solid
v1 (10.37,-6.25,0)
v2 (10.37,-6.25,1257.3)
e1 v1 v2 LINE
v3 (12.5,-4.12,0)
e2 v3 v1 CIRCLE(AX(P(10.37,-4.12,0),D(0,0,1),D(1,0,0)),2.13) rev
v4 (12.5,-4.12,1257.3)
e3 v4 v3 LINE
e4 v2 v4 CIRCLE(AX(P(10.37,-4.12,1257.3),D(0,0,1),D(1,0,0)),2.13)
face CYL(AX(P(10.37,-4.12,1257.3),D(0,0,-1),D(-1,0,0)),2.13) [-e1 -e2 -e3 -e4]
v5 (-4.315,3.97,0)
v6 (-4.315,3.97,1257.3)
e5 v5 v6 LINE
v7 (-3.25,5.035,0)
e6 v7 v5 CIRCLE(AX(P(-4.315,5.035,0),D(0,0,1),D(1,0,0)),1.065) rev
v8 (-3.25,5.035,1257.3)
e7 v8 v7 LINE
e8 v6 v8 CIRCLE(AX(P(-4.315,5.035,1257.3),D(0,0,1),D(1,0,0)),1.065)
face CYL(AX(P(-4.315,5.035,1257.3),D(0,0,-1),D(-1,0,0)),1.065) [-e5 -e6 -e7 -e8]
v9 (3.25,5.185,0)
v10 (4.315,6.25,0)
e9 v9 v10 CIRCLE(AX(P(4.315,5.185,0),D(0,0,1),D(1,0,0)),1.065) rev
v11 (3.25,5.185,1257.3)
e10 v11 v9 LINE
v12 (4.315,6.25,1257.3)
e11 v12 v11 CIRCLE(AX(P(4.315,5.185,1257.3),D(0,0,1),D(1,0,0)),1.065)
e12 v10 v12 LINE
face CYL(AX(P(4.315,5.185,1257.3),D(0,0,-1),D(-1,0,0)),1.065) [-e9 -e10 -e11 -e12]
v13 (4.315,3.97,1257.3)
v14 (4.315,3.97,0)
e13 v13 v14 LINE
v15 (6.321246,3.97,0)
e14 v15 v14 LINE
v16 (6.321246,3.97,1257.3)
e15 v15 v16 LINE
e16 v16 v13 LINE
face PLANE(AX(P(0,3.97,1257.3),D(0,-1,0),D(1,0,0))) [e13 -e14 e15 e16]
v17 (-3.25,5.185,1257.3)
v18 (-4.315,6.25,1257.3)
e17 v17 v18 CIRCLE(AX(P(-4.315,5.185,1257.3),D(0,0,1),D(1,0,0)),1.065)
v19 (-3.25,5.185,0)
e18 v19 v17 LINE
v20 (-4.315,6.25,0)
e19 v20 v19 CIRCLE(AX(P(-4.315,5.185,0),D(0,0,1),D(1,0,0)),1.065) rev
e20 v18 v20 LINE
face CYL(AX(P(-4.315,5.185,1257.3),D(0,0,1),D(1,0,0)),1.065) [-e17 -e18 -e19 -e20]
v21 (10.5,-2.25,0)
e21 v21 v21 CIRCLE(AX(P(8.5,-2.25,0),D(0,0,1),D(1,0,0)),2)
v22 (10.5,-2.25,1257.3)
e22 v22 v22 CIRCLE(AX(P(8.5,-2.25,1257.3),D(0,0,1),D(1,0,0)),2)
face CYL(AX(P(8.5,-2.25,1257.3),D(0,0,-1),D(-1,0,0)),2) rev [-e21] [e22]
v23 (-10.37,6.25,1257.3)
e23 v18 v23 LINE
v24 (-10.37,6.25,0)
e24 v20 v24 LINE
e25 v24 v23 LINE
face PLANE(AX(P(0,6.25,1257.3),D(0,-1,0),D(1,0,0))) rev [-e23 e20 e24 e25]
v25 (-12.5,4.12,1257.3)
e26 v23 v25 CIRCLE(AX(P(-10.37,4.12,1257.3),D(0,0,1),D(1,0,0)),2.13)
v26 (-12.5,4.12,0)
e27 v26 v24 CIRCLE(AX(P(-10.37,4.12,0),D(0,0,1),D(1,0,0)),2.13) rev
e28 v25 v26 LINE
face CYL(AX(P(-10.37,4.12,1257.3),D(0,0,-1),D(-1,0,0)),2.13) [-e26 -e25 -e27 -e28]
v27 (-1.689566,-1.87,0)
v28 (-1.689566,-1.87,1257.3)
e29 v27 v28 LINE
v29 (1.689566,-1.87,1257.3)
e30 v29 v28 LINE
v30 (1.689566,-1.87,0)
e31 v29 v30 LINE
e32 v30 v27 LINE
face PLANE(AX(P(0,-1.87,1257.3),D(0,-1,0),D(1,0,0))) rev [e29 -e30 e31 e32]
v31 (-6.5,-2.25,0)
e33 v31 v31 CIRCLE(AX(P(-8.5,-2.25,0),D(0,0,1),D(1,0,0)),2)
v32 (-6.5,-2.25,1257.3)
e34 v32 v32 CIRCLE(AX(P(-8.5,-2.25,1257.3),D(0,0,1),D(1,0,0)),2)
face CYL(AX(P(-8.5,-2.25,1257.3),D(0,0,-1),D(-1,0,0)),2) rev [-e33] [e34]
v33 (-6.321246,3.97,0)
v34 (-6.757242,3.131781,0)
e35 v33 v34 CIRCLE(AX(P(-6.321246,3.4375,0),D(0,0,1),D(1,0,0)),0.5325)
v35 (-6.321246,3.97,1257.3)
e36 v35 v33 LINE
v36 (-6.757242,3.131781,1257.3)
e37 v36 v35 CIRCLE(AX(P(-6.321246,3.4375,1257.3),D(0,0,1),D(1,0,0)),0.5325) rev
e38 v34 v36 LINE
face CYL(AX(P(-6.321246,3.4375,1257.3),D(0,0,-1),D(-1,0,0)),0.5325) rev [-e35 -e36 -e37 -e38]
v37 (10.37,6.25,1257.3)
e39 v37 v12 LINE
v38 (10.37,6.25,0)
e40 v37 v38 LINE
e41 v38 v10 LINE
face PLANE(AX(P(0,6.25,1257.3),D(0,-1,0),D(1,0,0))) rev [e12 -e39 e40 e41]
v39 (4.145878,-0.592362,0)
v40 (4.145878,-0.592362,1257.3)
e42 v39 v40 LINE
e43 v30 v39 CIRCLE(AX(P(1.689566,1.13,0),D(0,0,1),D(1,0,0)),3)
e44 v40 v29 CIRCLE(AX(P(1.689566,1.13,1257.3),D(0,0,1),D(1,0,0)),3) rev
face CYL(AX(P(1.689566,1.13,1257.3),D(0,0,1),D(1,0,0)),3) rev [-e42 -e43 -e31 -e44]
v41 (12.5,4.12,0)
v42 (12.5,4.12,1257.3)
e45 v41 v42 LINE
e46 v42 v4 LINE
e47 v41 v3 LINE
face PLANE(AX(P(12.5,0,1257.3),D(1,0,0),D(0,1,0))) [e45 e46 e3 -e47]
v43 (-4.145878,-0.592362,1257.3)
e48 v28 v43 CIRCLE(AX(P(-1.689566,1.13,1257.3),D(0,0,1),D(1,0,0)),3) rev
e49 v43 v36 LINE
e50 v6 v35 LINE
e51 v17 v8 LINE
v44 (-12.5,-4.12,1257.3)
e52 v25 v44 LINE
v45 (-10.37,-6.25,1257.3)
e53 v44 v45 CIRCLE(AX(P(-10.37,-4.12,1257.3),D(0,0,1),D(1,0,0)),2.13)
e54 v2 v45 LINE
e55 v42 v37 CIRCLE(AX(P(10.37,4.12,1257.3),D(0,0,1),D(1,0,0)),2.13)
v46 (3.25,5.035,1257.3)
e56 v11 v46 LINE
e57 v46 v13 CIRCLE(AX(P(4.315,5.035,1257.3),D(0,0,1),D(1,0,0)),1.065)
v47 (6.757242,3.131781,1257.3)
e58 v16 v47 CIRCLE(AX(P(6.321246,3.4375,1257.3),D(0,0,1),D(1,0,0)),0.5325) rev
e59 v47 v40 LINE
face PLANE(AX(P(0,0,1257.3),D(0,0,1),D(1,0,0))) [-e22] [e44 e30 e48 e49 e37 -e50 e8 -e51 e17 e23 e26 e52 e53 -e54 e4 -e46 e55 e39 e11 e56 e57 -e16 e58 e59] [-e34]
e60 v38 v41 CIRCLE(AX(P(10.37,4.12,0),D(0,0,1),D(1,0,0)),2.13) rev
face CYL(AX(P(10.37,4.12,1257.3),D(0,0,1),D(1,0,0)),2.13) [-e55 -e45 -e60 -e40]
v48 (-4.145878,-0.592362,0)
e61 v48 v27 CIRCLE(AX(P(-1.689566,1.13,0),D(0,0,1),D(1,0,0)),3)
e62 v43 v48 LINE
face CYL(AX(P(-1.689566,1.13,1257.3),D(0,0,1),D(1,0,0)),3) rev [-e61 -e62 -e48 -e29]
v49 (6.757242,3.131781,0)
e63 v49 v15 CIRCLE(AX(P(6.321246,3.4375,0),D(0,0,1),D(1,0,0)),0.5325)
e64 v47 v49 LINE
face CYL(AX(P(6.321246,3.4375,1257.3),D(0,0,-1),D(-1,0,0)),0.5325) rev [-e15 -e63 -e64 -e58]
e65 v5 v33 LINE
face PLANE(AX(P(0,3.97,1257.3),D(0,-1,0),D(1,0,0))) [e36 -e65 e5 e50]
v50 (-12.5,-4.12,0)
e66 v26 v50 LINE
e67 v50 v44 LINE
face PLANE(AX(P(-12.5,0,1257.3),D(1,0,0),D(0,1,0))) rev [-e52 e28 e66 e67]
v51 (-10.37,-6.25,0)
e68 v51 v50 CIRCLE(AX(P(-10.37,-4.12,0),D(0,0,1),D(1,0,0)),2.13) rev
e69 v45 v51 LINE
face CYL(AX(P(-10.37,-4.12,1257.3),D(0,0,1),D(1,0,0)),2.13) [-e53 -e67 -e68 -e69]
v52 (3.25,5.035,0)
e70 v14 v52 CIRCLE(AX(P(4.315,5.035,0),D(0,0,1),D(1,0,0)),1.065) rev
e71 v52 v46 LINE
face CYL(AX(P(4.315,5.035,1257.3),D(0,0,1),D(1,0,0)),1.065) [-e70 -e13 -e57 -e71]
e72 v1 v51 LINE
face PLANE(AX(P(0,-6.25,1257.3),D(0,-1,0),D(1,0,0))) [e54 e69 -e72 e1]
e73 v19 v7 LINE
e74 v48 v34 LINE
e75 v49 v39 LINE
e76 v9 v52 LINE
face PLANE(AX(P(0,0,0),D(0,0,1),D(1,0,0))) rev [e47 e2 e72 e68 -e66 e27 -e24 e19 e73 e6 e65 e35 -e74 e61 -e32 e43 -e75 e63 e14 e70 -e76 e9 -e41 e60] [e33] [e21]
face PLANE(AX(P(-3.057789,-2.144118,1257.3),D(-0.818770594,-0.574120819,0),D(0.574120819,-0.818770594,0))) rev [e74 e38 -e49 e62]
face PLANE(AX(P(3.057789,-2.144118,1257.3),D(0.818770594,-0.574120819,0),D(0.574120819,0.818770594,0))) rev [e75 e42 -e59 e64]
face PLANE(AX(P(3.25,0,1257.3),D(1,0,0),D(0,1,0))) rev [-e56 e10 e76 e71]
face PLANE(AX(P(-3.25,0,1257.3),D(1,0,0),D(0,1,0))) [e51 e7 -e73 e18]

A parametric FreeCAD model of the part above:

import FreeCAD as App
import Part
import Sketcher
from FreeCAD import Vector
Q = App.Units.Quantity


def edges_at(feature, points):
    """Names of the edges that pass closest to the given points."""
    edges = feature.Shape.Edges
    near = lambda p: min(range(len(edges)), key=lambda i: edges[i].distToShape(Part.Vertex(*p))[0])
    return sorted({f"Edge{near(p) + 1}" for p in points})


def add_polygon(sketch, points):
    """Adds a closed chain of lines whose ends are joined by coincident constraints."""
    first, n = sketch.GeometryCount, len(points)
    for a, b in zip(points, points[1:] + points[:1]):
        sketch.addGeometry(Part.LineSegment(App.Vector(*a, 0), App.Vector(*b, 0)), False)
    for i in range(n):
        sketch.addConstraint(Sketcher.Constraint("Coincident", first + i, 2, first + (i + 1) % n, 1))

doc = App.newDocument("Part")
body = doc.addObject("PartDesign::Body", "Body")

# Sketch on XY plane
sketch1 = body.newObject("Sketcher::SketchObject", "Sketch")
sketch1.AttachmentSupport = (doc.getObject("XY_Plane"), [""])
sketch1.MapMode = "FlatFace"
add_polygon(sketch1, [(7.3, 4), (3.2, -1.9), (-3.2, -1.9), (-7.3, 4), (-3.2, 4), (-3.2, 6.2), (-12.5, 6.2), (-12.5, -6.2), (12.5, -6.2), (12.5, 6.2), (3.2, 6.2), (3.2, 4)])  # lines 0-11
sketch1.addGeometry(Part.Circle(Vector(-8.5, -2.2, 0), Vector(0, 0, 1), 2), False)  # 12
sketch1.addGeometry(Part.Circle(Vector(8.5, -2.2, 0), Vector(0, 0, 1), 2), False)  # 13
sketch1.addConstraint([
    Sketcher.Constraint("Horizontal", 1),
    Sketcher.Constraint("Horizontal", 3),
    Sketcher.Constraint("Vertical", 4),
    Sketcher.Constraint("Horizontal", 5),
    Sketcher.Constraint("Vertical", 6),
    Sketcher.Constraint("Horizontal", 7),
    Sketcher.Constraint("Vertical", 8),
    Sketcher.Constraint("Horizontal", 9),
    Sketcher.Constraint("Vertical", 10),
    Sketcher.Constraint("Horizontal", 11),
    Sketcher.Constraint("Equal", 12, 13),
    Sketcher.Constraint("Symmetric", 5, 2, 7, 2, -1, 1),
    Sketcher.Constraint("Symmetric", 12, 3, 13, 3, -2),
    Sketcher.Constraint("Symmetric", 4, 2, 9, 2, -2),
    Sketcher.Constraint("Symmetric", 2, 2, 11, 2, -2),
    Sketcher.Constraint("Vertical", 1, 2, 3, 2),
    Sketcher.Constraint("Vertical", 0, 2, 9, 2),
    Sketcher.Constraint("Diameter", 12, Q("4 mm")),
    Sketcher.Constraint("DistanceX", 7, 1, 7, 2, Q("25 mm")),
    Sketcher.Constraint("DistanceX", 1, 2, 1, 1, Q("6.5 mm")),
    Sketcher.Constraint("DistanceY", 6, 2, 6, 1, Q("12.5 mm")),
    Sketcher.Constraint("DistanceX", 12, 3, 13, 3, Q("17 mm")),
    Sketcher.Constraint("DistanceY", 6, 2, 12, 3, Q("4 mm")),
    Sketcher.Constraint("DistanceY", 4, 1, 4, 2, Q("2.28 mm")),
    Sketcher.Constraint("DistanceX", 3, 1, 3, 2, Q("4.095 mm")),
    Sketcher.Constraint("DistanceY", 0, 2, -1, 1, Q("1.87 mm")),
])
pad1 = body.newObject("PartDesign::Pad", "Pad")
pad1.Profile = sketch1
pad1.Length = 1257.3
doc.recompute()

fillet = body.newObject("PartDesign::Fillet", "Fillet")
fillet.Base = (pad1, edges_at(pad1, [
    (3.25, 3.97, 628.65),
    (3.25, 6.25, 628.65),
    (-3.25, 6.25, 628.65),
    (-3.25, 3.97, 628.65),
]))
fillet.Radius = 1.065
doc.recompute()

fillet2 = body.newObject("PartDesign::Fillet", "Fillet001")
fillet2.Base = (fillet, edges_at(fillet, [(12.5, 6.25, 628.65)]))
fillet2.Radius = 2.13
doc.recompute()

fillet3 = body.newObject("PartDesign::Fillet", "Fillet002")
fillet3.Base = (fillet2, edges_at(fillet2, [(12.5, -6.25, 628.65), (-12.5, -6.25, 628.65), (-12.5, 6.25, 628.65)]))
fillet3.Radius = 2.13
doc.recompute()

fillet4 = body.newObject("PartDesign::Fillet", "Fillet003")
fillet4.Base = (fillet3, edges_at(fillet3, [(7.345, 3.97, 628.65)]))
fillet4.Radius = 0.5325
doc.recompute()

fillet5 = body.newObject("PartDesign::Fillet", "Fillet004")
fillet5.Base = (fillet4, edges_at(fillet4, [(-7.345, 3.97, 628.65)]))
fillet5.Radius = 0.5325
doc.recompute()

fillet6 = body.newObject("PartDesign::Fillet", "Fillet005")
fillet6.Base = (fillet5, edges_at(fillet5, [(-3.25, -1.87, 628.65)]))
fillet6.Radius = 3
doc.recompute()

fillet7 = body.newObject("PartDesign::Fillet", "Fillet006")
fillet7.Base = (fillet6, edges_at(fillet6, [(3.25, -1.87, 628.65)]))
fillet7.Radius = 3

doc.recompute()
